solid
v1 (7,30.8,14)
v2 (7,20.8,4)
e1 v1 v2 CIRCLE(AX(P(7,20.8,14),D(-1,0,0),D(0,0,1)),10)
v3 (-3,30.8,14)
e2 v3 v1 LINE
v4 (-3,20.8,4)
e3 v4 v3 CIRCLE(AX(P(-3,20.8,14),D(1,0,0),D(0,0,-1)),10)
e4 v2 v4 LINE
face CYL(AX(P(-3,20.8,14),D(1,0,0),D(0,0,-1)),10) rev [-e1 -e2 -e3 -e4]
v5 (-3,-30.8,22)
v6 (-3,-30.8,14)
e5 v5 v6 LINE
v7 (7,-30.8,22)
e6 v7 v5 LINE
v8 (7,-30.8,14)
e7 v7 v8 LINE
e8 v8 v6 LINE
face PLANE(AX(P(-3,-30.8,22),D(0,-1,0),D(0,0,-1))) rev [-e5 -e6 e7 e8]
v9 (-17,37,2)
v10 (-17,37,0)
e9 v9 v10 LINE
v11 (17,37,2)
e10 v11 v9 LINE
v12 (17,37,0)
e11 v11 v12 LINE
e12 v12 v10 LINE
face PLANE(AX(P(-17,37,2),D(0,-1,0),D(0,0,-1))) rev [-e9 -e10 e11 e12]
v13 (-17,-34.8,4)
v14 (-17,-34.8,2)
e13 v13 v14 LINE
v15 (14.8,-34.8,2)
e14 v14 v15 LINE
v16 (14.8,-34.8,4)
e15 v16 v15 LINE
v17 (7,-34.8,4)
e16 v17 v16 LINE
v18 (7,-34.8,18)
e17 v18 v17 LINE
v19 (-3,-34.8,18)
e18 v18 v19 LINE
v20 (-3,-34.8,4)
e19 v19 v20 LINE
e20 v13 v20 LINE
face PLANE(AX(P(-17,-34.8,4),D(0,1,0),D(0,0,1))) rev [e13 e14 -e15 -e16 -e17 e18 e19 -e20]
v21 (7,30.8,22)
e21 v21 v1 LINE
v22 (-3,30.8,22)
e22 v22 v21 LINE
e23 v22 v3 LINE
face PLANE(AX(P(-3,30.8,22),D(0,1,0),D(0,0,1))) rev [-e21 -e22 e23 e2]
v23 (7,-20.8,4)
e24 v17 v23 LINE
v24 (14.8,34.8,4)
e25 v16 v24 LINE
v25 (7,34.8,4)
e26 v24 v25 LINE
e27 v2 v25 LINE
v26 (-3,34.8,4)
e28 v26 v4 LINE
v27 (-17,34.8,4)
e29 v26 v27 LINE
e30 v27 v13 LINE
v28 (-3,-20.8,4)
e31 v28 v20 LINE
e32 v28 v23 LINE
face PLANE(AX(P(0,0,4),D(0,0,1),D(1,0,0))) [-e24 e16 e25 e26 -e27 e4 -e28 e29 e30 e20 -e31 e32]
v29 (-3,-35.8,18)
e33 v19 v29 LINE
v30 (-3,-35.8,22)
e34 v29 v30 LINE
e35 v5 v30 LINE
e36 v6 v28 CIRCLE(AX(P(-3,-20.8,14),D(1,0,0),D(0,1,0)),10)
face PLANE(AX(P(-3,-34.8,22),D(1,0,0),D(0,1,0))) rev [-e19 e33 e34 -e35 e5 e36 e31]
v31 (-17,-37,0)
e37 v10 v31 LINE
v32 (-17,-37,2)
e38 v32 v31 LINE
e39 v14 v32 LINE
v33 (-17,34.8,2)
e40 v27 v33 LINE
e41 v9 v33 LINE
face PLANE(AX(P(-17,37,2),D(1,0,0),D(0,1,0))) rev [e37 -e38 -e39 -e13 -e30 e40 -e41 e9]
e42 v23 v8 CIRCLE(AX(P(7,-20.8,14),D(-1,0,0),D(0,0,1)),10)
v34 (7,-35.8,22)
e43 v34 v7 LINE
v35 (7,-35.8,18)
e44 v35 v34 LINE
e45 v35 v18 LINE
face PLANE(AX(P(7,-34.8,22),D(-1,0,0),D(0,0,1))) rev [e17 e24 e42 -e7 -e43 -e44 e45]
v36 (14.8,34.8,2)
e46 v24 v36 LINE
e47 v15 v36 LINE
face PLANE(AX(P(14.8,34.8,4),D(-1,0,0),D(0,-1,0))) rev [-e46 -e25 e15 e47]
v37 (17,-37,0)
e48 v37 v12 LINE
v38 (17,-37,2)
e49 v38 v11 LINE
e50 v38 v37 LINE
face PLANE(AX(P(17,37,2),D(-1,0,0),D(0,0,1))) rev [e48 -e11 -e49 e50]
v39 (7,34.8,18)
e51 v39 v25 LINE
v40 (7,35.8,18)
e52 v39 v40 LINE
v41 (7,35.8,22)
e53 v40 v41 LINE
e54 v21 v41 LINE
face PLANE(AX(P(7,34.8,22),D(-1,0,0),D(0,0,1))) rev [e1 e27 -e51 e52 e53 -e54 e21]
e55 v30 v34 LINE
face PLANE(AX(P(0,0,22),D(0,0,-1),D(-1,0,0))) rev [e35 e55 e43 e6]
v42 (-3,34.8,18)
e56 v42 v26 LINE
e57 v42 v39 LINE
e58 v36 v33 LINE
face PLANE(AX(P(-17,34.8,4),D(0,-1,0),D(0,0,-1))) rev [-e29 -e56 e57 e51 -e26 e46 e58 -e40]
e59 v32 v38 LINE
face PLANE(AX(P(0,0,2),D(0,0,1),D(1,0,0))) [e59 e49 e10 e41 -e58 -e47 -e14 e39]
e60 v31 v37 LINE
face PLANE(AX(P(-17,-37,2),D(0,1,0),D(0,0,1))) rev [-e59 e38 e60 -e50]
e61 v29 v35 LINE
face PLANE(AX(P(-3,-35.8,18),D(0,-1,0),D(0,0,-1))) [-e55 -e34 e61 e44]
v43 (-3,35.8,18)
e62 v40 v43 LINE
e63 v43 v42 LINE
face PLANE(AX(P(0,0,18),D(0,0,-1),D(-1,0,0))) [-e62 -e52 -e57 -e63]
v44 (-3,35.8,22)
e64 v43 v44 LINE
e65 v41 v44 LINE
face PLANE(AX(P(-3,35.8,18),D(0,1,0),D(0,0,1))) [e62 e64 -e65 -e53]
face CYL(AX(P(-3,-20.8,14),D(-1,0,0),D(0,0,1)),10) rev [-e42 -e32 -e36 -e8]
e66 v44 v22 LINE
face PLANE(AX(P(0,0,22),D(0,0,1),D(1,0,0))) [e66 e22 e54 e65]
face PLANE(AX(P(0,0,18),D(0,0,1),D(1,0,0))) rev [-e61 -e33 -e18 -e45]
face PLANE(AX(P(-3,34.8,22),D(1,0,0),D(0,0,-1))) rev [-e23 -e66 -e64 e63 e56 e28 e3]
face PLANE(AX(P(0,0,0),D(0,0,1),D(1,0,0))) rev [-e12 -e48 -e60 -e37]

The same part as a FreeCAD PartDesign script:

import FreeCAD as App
import Part
import Sketcher
from FreeCAD import Vector
Q = App.Units.Quantity


def edges_at(feature, points):
    """Names of the edges that pass closest to the given points."""
    edges = feature.Shape.Edges
    near = lambda p: min(range(len(edges)), key=lambda i: edges[i].distToShape(Part.Vertex(*p))[0])
    return sorted({f"Edge{near(p) + 1}" for p in points})

doc = App.newDocument("Part")
params = doc.addObject("Spreadsheet::Sheet", "Params")
for row, (alias, value) in enumerate([
    ("sketch1_width", "34 mm"),
    ("sketch1_height", "74 mm"),
    ("pad1_length", "2 mm"),
    ("sketch2_width", "31.8 mm"),
    ("sketch2_height", "69.6 mm"),
    ("pad2_length", "2 mm"),
    ("sketch3_width", "10 mm"),
    ("sketch3_height", "4 mm"),
    ("pad3_length", "18 mm"),
    ("sketch4_width", "10 mm"),
    ("sketch4_height", "1 mm"),
    ("pad4_length", "4 mm"),
    ("fillet_radius", "10 mm"),
], start=1):
    params.set(f"A{row}", alias)
    params.set(f"B{row}", "=" + value)
    params.setAlias(f"B{row}", alias)

body = doc.addObject("PartDesign::Body", "Body")

sketch1 = body.newObject("Sketcher::SketchObject", "Sketch")
sketch1.AttachmentSupport = (doc.getObject("XY_Plane"), [""])
sketch1.MapMode = "FlatFace"
sketch1.addGeometry([
    Part.LineSegment(Vector(-17, 37, 0), Vector(-17, -37, 0)),
    Part.LineSegment(Vector(-17, -37, 0), Vector(17, -37, 0)),
    Part.LineSegment(Vector(17, -37, 0), Vector(17, 37, 0)),
    Part.LineSegment(Vector(17, 37, 0), Vector(-17, 37, 0)),
], False)
sketch1.addConstraint([
    Sketcher.Constraint("Coincident", 0, 2, 1, 1),
    Sketcher.Constraint("Coincident", 1, 2, 2, 1),
    Sketcher.Constraint("Coincident", 2, 2, 3, 1),
    Sketcher.Constraint("Coincident", 3, 2, 0, 1),
    Sketcher.Constraint("Vertical", 0),
    Sketcher.Constraint("Horizontal", 1),
    Sketcher.Constraint("Vertical", 2),
    Sketcher.Constraint("Horizontal", 3),
    Sketcher.Constraint("Symmetric", 0, 2, 2, 2, -1, 1),
    Sketcher.Constraint("DistanceX", 1, 1, 1, 2, Q("34 mm")),
    Sketcher.Constraint("DistanceY", 0, 2, 0, 1, Q("74 mm")),
])
sketch1.setExpression("Constraints[9]", "Params.sketch1_width")
sketch1.setExpression("Constraints[10]", "Params.sketch1_height")
pad1 = body.newObject("PartDesign::Pad", "Pad")
pad1.Profile = sketch1
pad1.setExpression("Length", "Params.pad1_length")

sketch2 = body.newObject("Sketcher::SketchObject", "Sketch001")
sketch2.AttachmentSupport = (doc.getObject("XY_Plane"), [""])
sketch2.MapMode = "FlatFace"
sketch2.AttachmentOffset = App.Placement(Vector(0, 0, 2), App.Rotation())
sketch2.addGeometry([
    Part.LineSegment(Vector(-17, 34.8, 0), Vector(-17, -34.8, 0)),
    Part.LineSegment(Vector(-17, -34.8, 0), Vector(14.8, -34.8, 0)),
    Part.LineSegment(Vector(14.8, -34.8, 0), Vector(14.8, 34.8, 0)),
    Part.LineSegment(Vector(14.8, 34.8, 0), Vector(-17, 34.8, 0)),
], False)
sketch2.addConstraint([
    Sketcher.Constraint("Coincident", 0, 2, 1, 1),
    Sketcher.Constraint("Coincident", 1, 2, 2, 1),
    Sketcher.Constraint("Coincident", 2, 2, 3, 1),
    Sketcher.Constraint("Coincident", 3, 2, 0, 1),
    Sketcher.Constraint("Vertical", 0),
    Sketcher.Constraint("Horizontal", 1),
    Sketcher.Constraint("Vertical", 2),
    Sketcher.Constraint("Horizontal", 3),
    Sketcher.Constraint("DistanceX", 1, 1, 1, 2, Q("31.8 mm")),
    Sketcher.Constraint("DistanceY", 0, 2, 0, 1, Q("69.6 mm")),
    Sketcher.Constraint("DistanceX", 0, 2, -1, 1, Q("17 mm")),
    Sketcher.Constraint("DistanceY", 0, 2, -1, 1, Q("34.8 mm")),
])
sketch2.setExpression("Constraints[8]", "Params.sketch2_width")
sketch2.setExpression("Constraints[9]", "Params.sketch2_height")
pad2 = body.newObject("PartDesign::Pad", "Pad001")
pad2.Profile = sketch2
pad2.setExpression("Length", "Params.pad2_length")

sketch3 = body.newObject("Sketcher::SketchObject", "Sketch002")
sketch3.AttachmentSupport = (doc.getObject("XY_Plane"), [""])
sketch3.MapMode = "FlatFace"
sketch3.AttachmentOffset = App.Placement(Vector(0, 0, 4), App.Rotation())
sketch3.addGeometry([
    Part.LineSegment(Vector(-3, 34.8, 0), Vector(-3, 30.8, 0)),
    Part.LineSegment(Vector(-3, 30.8, 0), Vector(7, 30.8, 0)),
    Part.LineSegment(Vector(7, 30.8, 0), Vector(7, 34.8, 0)),
    Part.LineSegment(Vector(7, 34.8, 0), Vector(-3, 34.8, 0)),
    Part.LineSegment(Vector(-3, -30.8, 0), Vector(-3, -34.8, 0)),
    Part.LineSegment(Vector(-3, -34.8, 0), Vector(7, -34.8, 0)),
    Part.LineSegment(Vector(7, -34.8, 0), Vector(7, -30.8, 0)),
    Part.LineSegment(Vector(7, -30.8, 0), Vector(-3, -30.8, 0)),
], False)
sketch3.addConstraint([
    Sketcher.Constraint("Coincident", 0, 2, 1, 1),
    Sketcher.Constraint("Coincident", 1, 2, 2, 1),
    Sketcher.Constraint("Coincident", 2, 2, 3, 1),
    Sketcher.Constraint("Coincident", 3, 2, 0, 1),
    Sketcher.Constraint("Coincident", 4, 2, 5, 1),
    Sketcher.Constraint("Coincident", 5, 2, 6, 1),
    Sketcher.Constraint("Coincident", 6, 2, 7, 1),
    Sketcher.Constraint("Coincident", 7, 2, 4, 1),
    Sketcher.Constraint("Vertical", 0),
    Sketcher.Constraint("Horizontal", 1),
    Sketcher.Constraint("Vertical", 2),
    Sketcher.Constraint("Horizontal", 3),
    Sketcher.Constraint("Vertical", 4),
    Sketcher.Constraint("Horizontal", 5),
    Sketcher.Constraint("Vertical", 6),
    Sketcher.Constraint("Horizontal", 7),
    Sketcher.Constraint("Symmetric", 3, 2, 4, 2, -1),
    Sketcher.Constraint("Symmetric", 1, 2, 6, 2, -1),
    Sketcher.Constraint("DistanceX", 1, 1, 1, 2, Q("10 mm")),
    Sketcher.Constraint("DistanceY", 0, 2, 0, 1, Q("4 mm")),
    Sketcher.Constraint("DistanceX", 0, 2, -1, 1, Q("3 mm")),
    Sketcher.Constraint("DistanceY", -1, 1, 0, 2, Q("30.8 mm")),
])
sketch3.setExpression("Constraints[18]", "Params.sketch3_width")
sketch3.setExpression("Constraints[19]", "Params.sketch3_height")
pad3 = body.newObject("PartDesign::Pad", "Pad002")
pad3.Profile = sketch3
pad3.setExpression("Length", "Params.pad3_length")

sketch4 = body.newObject("Sketcher::SketchObject", "Sketch003")
sketch4.AttachmentSupport = (doc.getObject("XY_Plane"), [""])
sketch4.MapMode = "FlatFace"
sketch4.AttachmentOffset = App.Placement(Vector(0, 0, 22), App.Rotation())
sketch4.addGeometry([
    Part.LineSegment(Vector(-3, 35.8, 0), Vector(-3, 34.8, 0)),
    Part.LineSegment(Vector(-3, 34.8, 0), Vector(7, 34.8, 0)),
    Part.LineSegment(Vector(7, 34.8, 0), Vector(7, 35.8, 0)),
    Part.LineSegment(Vector(7, 35.8, 0), Vector(-3, 35.8, 0)),
    Part.LineSegment(Vector(-3, -34.8, 0), Vector(-3, -35.8, 0)),
    Part.LineSegment(Vector(-3, -35.8, 0), Vector(7, -35.8, 0)),
    Part.LineSegment(Vector(7, -35.8, 0), Vector(7, -34.8, 0)),
    Part.LineSegment(Vector(7, -34.8, 0), Vector(-3, -34.8, 0)),
], False)
sketch4.addConstraint([
    Sketcher.Constraint("Coincident", 0, 2, 1, 1),
    Sketcher.Constraint("Coincident", 1, 2, 2, 1),
    Sketcher.Constraint("Coincident", 2, 2, 3, 1),
    Sketcher.Constraint("Coincident", 3, 2, 0, 1),
    Sketcher.Constraint("Coincident", 4, 2, 5, 1),
    Sketcher.Constraint("Coincident", 5, 2, 6, 1),
    Sketcher.Constraint("Coincident", 6, 2, 7, 1),
    Sketcher.Constraint("Coincident", 7, 2, 4, 1),
    Sketcher.Constraint("Vertical", 0),
    Sketcher.Constraint("Horizontal", 1),
    Sketcher.Constraint("Vertical", 2),
    Sketcher.Constraint("Horizontal", 3),
    Sketcher.Constraint("Vertical", 4),
    Sketcher.Constraint("Horizontal", 5),
    Sketcher.Constraint("Vertical", 6),
    Sketcher.Constraint("Horizontal", 7),
    Sketcher.Constraint("Symmetric", 3, 2, 4, 2, -1),
    Sketcher.Constraint("Symmetric", 1, 2, 6, 2, -1),
    Sketcher.Constraint("DistanceX", 1, 1, 1, 2, Q("10 mm")),
    Sketcher.Constraint("DistanceY", 0, 2, 0, 1, Q("1 mm")),
    Sketcher.Constraint("DistanceX", 0, 2, -1, 1, Q("3 mm")),
    Sketcher.Constraint("DistanceY", -1, 1, 0, 2, Q("34.8 mm")),
])
sketch4.setExpression("Constraints[18]", "Params.sketch4_width")
sketch4.setExpression("Constraints[19]", "Params.sketch4_height")
pad4 = body.newObject("PartDesign::Pad", "Pad003")
pad4.Profile = sketch4
pad4.setExpression("Length", "Params.pad4_length")
pad4.Reversed = True
doc.recompute()

fillet = body.newObject("PartDesign::Fillet", "Fillet")
fillet.Base = (pad4, edges_at(pad4, [(2, 30.8, 4), (2, -30.8, 4)]))
fillet.setExpression("Radius", "Params.fillet_radius")

doc.recompute()
